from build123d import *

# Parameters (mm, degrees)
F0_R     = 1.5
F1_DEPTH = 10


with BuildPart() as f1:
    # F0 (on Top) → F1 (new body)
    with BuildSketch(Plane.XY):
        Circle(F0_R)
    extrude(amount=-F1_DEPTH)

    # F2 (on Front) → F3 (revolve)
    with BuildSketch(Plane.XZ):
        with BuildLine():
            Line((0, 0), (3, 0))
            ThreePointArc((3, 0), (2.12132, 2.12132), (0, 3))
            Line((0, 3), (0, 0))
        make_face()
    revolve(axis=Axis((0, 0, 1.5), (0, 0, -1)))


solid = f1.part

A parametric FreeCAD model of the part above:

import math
import FreeCAD as App
import Part
import Sketcher

V = App.Vector
Q = App.Units.Quantity

doc = App.newDocument("Part")
body = doc.addObject("PartDesign::Body", "Body")

# Sketch on XY plane
sketch1 = body.newObject("Sketcher::SketchObject", "Sketch")
sketch1.AttachmentSupport = (doc.getObject("XY_Plane"), [""])
sketch1.MapMode = "FlatFace"
sketch1.addGeometry(Part.Circle(V(0, 0, 0), V(0, 0, 1), 1.5), False)
sketch1.addConstraint(Sketcher.Constraint("Coincident", 0, 3, -1, 1))
sketch1.addConstraint(Sketcher.Constraint("Diameter", 0, Q("3 mm")))
pad1 = body.newObject("PartDesign::Pad", "Pad")
pad1.Profile = sketch1
pad1.Length = 10
pad1.Reversed = True

# Sketch on XZ plane
sketch2 = body.newObject("Sketcher::SketchObject", "Sketch001")
sketch2.AttachmentSupport = (doc.getObject("XZ_Plane"), [""])
sketch2.MapMode = "FlatFace"
sketch2.addGeometry(Part.LineSegment(V(0, 0, 0), V(3, 0, 0)), False)
sketch2.addGeometry(Part.ArcOfCircle(Part.Circle(V(0, 0, 0), V(0, 0, 1), 3), math.radians(0), math.radians(90)), False)
sketch2.addGeometry(Part.LineSegment(V(0, 3, 0), V(0, 0, 0)), False)
sketch2.addConstraint(Sketcher.Constraint("Coincident", 0, 2, 1, 1))
sketch2.addConstraint(Sketcher.Constraint("Coincident", 1, 2, 2, 1))
sketch2.addConstraint(Sketcher.Constraint("Coincident", 2, 2, 0, 1))
sketch2.addConstraint(Sketcher.Constraint("Horizontal", 0))
sketch2.addConstraint(Sketcher.Constraint("Vertical", 2))
sketch2.addConstraint(Sketcher.Constraint("Coincident", 1, 3, -1, 1))
sketch2.addConstraint(Sketcher.Constraint("Coincident", 2, 2, -1, 1))
sketch2.addConstraint(Sketcher.Constraint("Radius", 1, Q("3.000001 mm")))
revolution = body.newObject("PartDesign::Revolution", "Revolution")
revolution.Profile = sketch2
revolution.ReferenceAxis = (sketch2, ["V_Axis"])
revolution.Angle = 360

doc.recompute()
